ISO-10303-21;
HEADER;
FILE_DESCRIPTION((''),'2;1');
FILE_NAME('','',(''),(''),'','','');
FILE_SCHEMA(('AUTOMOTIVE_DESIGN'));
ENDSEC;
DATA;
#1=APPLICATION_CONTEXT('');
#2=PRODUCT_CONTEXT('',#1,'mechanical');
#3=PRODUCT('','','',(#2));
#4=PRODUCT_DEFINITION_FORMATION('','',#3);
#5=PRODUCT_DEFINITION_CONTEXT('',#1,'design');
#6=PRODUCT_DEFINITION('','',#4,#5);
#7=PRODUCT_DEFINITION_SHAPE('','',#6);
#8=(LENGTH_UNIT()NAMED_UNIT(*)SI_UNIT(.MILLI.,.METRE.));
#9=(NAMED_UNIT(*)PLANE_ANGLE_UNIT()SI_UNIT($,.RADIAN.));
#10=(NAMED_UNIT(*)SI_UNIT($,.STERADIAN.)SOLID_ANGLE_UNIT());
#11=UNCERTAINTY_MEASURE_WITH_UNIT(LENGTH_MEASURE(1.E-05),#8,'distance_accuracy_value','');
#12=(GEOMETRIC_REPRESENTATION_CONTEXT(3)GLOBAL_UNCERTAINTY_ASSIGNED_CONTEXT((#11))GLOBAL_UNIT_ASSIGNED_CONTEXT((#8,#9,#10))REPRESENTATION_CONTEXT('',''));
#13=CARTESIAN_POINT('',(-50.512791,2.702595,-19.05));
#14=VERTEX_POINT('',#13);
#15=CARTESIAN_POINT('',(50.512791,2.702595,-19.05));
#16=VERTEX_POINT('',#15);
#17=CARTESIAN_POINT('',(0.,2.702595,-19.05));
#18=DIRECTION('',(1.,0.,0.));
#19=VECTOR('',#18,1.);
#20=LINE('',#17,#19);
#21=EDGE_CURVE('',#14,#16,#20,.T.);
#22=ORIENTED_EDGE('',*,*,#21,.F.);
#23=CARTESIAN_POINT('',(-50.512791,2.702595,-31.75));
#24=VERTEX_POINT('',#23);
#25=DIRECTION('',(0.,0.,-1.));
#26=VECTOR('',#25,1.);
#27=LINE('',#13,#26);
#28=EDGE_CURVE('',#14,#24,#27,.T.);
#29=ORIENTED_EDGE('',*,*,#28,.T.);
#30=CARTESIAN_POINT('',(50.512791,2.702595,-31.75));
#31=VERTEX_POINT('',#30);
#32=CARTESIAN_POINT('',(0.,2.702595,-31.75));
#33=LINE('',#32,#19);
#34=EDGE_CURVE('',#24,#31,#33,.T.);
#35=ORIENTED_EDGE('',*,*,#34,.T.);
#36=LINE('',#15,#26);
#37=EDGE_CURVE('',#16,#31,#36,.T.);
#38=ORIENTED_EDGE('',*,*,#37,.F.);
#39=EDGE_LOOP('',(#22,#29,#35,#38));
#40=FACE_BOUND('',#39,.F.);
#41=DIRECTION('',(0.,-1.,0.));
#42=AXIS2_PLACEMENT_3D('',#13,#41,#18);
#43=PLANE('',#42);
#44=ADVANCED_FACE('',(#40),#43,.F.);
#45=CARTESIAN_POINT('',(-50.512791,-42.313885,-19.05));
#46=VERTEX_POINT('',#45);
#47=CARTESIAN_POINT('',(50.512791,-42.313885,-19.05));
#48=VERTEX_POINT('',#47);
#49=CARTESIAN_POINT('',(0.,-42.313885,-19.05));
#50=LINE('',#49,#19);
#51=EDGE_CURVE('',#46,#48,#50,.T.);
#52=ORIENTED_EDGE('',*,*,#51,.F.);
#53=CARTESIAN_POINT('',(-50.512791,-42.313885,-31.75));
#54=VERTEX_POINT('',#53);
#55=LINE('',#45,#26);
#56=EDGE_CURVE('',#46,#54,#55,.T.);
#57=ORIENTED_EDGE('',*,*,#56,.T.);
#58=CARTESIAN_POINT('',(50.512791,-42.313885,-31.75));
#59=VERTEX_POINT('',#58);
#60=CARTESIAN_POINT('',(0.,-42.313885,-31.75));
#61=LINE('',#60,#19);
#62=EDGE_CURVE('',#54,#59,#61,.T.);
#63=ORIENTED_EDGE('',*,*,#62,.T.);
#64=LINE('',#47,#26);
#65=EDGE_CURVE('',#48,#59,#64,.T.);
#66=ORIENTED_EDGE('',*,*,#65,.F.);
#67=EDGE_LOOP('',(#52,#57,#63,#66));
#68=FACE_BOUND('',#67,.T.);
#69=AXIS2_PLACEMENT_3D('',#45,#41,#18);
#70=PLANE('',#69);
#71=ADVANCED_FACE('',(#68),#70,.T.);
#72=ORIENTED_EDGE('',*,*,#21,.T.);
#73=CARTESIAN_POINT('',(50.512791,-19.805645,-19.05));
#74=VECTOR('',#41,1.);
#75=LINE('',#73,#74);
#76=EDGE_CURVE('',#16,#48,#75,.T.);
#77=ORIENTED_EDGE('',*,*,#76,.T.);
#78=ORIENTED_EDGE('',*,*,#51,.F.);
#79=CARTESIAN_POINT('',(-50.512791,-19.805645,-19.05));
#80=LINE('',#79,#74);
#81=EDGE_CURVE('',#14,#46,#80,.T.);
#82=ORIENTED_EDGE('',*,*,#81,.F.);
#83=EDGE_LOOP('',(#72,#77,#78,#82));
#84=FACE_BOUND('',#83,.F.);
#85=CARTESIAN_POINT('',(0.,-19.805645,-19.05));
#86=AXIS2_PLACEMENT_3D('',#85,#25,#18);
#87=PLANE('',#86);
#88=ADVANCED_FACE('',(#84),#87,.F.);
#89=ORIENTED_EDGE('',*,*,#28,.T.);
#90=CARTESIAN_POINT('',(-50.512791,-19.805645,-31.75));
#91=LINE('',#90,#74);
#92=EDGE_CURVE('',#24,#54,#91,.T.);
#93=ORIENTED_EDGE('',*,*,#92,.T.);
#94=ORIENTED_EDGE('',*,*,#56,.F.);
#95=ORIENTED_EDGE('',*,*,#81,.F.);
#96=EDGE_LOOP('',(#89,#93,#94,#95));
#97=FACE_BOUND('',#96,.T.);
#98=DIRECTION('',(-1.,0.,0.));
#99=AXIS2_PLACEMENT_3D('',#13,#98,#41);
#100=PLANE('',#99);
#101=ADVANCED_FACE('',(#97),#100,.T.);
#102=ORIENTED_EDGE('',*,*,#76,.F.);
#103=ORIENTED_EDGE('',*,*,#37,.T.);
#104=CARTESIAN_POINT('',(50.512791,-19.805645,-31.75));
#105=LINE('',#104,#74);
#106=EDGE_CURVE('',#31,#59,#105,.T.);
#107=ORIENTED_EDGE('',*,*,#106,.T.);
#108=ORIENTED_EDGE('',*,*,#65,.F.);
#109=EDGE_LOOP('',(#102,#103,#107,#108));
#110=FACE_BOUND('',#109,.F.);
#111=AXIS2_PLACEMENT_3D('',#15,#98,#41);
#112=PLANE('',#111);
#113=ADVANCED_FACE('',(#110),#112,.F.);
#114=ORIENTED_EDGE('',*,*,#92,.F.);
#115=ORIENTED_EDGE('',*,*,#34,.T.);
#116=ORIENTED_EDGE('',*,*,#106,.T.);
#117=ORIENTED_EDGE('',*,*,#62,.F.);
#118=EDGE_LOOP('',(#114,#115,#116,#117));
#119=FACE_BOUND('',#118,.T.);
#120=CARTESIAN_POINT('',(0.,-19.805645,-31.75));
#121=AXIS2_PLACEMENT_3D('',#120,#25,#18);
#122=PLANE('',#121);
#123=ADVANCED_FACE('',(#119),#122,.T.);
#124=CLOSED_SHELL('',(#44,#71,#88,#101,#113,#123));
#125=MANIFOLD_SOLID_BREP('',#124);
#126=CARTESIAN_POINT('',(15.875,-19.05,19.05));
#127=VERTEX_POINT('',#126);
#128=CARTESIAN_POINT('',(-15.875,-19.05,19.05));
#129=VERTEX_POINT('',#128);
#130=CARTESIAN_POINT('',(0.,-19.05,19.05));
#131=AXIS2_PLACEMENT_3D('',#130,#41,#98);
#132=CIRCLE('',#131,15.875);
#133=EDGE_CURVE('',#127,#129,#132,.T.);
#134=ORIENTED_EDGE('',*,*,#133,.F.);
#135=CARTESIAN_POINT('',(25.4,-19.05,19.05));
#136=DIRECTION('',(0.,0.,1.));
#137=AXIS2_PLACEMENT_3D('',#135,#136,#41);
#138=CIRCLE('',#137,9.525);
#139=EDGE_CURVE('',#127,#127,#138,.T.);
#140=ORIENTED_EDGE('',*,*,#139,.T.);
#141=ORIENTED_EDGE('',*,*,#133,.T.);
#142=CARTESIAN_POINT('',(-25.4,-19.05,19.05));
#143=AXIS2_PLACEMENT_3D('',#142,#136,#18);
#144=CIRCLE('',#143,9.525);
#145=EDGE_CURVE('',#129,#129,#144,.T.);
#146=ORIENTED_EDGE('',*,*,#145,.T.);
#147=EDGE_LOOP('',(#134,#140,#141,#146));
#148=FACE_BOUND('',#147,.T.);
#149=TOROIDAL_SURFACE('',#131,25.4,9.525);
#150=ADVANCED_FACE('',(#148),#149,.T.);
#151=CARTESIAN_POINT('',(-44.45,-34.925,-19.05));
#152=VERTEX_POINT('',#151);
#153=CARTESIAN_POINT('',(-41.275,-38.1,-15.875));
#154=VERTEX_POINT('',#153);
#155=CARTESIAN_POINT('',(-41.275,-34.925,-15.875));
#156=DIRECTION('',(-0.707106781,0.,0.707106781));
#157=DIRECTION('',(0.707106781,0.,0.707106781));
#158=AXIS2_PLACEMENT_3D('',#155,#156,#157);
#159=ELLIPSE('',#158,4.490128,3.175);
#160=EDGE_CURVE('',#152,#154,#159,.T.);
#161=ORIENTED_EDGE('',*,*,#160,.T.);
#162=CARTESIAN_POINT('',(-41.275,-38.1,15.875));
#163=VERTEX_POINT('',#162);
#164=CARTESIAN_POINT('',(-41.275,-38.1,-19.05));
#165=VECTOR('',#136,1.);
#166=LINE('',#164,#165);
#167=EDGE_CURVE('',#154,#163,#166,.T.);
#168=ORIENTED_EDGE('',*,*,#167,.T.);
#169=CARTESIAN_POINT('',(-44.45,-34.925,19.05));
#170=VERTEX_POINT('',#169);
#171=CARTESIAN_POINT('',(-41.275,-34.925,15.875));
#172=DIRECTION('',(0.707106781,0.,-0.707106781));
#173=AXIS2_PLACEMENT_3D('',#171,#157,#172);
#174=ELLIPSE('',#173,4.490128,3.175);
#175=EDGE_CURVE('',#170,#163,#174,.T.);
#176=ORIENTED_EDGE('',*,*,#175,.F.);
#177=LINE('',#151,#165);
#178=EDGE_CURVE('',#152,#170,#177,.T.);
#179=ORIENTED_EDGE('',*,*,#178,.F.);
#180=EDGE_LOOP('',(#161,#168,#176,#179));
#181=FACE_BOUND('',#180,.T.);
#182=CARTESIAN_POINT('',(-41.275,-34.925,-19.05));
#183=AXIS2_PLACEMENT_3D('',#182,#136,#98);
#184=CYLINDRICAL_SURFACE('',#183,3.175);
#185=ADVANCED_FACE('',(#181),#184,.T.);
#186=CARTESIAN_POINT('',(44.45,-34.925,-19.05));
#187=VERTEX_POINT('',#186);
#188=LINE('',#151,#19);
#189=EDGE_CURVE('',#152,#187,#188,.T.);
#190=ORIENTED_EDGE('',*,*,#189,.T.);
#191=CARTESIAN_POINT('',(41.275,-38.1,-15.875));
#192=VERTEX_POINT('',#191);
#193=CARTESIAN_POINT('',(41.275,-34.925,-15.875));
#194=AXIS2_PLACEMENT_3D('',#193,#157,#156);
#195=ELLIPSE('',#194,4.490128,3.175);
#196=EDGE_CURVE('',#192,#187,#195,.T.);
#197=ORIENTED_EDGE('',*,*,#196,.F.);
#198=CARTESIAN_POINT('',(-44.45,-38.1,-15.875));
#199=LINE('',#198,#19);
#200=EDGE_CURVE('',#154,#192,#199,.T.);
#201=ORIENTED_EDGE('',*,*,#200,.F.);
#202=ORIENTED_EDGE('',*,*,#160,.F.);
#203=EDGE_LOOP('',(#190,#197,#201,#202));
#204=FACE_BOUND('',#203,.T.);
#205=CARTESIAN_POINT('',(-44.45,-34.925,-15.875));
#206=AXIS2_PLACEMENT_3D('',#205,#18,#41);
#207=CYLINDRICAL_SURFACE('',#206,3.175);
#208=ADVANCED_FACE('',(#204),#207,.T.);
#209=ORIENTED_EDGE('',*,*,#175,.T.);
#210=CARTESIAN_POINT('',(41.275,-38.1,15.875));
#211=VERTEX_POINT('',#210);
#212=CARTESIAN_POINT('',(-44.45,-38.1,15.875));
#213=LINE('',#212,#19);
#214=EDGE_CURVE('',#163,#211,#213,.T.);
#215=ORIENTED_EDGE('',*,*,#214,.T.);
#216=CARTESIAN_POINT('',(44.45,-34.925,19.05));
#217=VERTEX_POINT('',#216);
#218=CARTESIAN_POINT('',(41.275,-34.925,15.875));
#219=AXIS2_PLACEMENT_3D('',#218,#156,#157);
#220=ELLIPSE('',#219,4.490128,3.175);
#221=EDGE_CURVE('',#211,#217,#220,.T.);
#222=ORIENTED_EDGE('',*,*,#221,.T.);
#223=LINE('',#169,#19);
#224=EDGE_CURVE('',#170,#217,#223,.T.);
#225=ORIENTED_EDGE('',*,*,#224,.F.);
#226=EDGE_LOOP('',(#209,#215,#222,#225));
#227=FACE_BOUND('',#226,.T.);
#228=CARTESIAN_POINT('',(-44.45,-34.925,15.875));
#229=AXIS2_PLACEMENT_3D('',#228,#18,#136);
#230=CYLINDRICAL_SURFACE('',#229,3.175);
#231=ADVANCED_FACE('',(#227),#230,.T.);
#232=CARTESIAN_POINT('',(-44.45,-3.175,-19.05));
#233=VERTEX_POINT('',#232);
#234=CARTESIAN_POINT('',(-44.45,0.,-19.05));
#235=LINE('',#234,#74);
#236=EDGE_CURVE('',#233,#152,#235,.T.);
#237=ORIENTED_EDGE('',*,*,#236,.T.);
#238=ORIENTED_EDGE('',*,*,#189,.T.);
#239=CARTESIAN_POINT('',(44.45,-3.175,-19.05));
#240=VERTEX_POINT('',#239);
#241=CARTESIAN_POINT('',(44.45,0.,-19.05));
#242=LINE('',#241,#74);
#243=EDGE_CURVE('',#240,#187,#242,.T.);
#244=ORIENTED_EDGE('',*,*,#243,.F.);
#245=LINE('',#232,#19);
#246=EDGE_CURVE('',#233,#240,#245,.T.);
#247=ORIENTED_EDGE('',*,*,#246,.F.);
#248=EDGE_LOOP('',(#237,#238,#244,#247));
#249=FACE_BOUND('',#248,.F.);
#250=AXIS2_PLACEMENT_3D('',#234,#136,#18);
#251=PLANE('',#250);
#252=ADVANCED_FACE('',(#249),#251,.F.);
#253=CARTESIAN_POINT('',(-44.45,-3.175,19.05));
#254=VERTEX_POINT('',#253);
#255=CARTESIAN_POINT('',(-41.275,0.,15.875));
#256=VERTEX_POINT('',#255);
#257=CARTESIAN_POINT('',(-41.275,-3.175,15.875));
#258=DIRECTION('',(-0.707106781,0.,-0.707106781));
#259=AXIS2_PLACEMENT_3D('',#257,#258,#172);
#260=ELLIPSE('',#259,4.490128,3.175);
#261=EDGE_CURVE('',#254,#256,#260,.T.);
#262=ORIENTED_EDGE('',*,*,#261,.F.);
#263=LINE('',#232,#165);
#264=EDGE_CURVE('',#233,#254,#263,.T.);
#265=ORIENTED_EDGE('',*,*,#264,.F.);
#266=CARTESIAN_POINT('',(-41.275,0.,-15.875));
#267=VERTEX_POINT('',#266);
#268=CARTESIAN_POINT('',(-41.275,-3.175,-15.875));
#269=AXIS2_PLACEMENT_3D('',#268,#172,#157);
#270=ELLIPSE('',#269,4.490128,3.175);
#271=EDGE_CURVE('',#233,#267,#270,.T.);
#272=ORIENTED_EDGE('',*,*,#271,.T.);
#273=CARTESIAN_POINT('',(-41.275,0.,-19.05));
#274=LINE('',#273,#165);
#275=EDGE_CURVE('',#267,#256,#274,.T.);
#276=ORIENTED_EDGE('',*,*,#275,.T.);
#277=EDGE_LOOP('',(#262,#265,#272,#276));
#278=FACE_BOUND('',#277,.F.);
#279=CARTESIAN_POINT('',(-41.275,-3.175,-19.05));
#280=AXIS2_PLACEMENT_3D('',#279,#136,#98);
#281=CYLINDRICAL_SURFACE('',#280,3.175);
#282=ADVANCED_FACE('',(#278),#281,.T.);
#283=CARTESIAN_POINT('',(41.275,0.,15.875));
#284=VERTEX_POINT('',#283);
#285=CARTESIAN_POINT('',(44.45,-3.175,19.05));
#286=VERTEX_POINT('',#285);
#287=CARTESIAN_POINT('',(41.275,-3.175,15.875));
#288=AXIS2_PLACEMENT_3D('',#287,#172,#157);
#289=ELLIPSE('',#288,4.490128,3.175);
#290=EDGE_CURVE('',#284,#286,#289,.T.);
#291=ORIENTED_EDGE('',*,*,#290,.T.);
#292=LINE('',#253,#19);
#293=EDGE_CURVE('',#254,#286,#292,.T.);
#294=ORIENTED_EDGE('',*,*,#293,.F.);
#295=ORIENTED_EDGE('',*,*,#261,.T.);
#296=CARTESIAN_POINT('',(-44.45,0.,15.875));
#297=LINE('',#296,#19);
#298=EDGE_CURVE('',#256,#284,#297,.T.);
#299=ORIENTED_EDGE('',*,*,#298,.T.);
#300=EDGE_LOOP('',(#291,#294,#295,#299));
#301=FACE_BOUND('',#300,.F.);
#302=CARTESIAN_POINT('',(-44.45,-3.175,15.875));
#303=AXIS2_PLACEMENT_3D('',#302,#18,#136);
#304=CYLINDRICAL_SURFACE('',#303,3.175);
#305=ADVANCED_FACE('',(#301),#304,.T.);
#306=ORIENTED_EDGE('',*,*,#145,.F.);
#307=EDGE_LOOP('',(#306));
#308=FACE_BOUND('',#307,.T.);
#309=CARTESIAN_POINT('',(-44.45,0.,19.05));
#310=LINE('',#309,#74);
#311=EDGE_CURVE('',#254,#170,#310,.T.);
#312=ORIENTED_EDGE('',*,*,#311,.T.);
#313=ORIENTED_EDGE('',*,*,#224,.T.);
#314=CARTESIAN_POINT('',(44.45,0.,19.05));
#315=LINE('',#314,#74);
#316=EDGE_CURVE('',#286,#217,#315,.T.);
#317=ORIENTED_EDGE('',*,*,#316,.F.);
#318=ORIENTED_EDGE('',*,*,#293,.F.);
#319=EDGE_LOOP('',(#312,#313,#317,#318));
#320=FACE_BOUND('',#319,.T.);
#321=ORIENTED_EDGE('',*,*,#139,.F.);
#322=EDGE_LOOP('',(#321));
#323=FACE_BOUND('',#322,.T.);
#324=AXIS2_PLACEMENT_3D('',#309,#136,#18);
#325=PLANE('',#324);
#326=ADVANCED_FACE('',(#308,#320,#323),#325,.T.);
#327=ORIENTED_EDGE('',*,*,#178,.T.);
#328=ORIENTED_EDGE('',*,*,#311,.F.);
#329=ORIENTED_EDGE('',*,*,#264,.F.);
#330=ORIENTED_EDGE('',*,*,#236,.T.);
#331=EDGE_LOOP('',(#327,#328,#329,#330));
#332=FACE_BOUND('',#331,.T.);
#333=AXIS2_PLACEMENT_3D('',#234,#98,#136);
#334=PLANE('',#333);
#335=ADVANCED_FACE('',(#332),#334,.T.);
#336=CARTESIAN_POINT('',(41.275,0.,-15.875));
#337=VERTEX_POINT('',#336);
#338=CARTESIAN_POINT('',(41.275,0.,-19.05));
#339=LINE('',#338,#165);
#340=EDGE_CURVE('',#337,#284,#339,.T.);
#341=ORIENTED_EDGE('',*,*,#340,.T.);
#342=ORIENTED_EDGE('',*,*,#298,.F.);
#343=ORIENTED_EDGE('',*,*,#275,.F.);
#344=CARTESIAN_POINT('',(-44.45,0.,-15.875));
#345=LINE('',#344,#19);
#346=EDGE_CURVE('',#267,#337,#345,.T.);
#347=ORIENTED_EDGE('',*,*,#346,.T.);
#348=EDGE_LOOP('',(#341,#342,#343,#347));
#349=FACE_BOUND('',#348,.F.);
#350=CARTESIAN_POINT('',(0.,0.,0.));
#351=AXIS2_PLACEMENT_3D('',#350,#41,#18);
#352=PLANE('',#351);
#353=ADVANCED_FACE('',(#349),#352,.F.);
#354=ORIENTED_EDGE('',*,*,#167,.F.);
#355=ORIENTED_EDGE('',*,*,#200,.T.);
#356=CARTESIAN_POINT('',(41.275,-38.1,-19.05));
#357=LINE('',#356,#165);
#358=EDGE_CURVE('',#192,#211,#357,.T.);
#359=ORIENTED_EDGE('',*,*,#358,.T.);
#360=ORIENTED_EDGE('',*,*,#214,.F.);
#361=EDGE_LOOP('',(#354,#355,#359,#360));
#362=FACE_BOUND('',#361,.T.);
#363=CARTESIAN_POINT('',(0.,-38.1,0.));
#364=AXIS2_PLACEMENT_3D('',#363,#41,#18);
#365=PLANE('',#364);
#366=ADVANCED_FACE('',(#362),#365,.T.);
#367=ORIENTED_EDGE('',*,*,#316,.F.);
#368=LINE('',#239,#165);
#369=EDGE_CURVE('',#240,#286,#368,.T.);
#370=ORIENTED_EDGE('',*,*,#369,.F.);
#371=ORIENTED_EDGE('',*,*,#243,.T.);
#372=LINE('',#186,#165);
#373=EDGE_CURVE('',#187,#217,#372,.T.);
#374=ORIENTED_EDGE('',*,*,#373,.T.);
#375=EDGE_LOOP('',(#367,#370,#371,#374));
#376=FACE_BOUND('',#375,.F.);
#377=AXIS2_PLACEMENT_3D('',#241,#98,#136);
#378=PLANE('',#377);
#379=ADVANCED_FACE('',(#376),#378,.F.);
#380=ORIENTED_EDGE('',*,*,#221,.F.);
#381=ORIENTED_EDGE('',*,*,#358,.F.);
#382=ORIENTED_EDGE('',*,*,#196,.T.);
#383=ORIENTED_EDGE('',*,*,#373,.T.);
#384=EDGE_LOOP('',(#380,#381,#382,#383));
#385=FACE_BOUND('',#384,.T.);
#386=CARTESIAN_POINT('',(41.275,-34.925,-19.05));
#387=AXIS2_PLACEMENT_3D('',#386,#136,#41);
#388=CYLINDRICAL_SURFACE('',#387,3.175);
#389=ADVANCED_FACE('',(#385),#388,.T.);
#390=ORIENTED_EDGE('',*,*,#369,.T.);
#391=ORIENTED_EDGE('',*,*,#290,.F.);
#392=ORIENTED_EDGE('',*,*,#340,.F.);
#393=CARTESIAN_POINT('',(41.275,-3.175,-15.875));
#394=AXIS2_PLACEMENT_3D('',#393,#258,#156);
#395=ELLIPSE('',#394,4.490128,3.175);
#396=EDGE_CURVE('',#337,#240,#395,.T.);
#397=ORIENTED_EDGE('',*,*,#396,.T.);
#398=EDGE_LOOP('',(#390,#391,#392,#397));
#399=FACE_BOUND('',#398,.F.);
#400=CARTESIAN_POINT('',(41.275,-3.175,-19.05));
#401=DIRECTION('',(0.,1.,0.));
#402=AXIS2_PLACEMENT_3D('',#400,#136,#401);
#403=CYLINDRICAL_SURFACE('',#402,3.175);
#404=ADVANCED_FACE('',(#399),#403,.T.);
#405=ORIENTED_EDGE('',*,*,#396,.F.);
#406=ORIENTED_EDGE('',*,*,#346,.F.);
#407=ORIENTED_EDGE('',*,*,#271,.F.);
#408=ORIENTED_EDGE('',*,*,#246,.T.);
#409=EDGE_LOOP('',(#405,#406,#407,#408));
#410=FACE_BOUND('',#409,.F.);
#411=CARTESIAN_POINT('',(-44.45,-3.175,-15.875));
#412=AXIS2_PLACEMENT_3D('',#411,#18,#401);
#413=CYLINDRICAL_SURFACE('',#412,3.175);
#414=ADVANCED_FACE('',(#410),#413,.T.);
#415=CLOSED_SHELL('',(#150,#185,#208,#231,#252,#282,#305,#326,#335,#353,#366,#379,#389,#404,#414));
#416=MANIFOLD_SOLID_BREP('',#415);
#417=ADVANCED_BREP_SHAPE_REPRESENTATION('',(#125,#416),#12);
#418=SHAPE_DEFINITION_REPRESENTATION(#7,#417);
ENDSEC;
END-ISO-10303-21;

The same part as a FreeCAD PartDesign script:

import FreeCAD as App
import Part
import Sketcher
Q = App.Units.Quantity


def edges_at(feature, points):
    """Names of the edges that pass closest to the given points."""
    edges = feature.Shape.Edges
    near = lambda p: min(range(len(edges)), key=lambda i: edges[i].distToShape(Part.Vertex(*p))[0])
    return sorted({f"Edge{near(p) + 1}" for p in points})

doc = App.newDocument("Part")
body = doc.addObject("PartDesign::Body", "Body")

sketch1 = body.newObject("Sketcher::SketchObject", "Sketch")
sketch1.AttachmentSupport = (doc.getObject("XZ_Plane"), [""])
sketch1.MapMode = "FlatFace"
sketch1.addGeometry(Part.LineSegment(App.Vector(-44, 19, 0), App.Vector(-44, -19, 0)), False)
sketch1.addGeometry(Part.LineSegment(App.Vector(-44, -19, 0), App.Vector(44, -19, 0)), False)
sketch1.addGeometry(Part.LineSegment(App.Vector(44, -19, 0), App.Vector(44, 19, 0)), False)
sketch1.addGeometry(Part.LineSegment(App.Vector(44, 19, 0), App.Vector(-44, 19, 0)), False)
sketch1.addConstraint(Sketcher.Constraint("Coincident", 0, 2, 1, 1))
sketch1.addConstraint(Sketcher.Constraint("Coincident", 1, 2, 2, 1))
sketch1.addConstraint(Sketcher.Constraint("Coincident", 2, 2, 3, 1))
sketch1.addConstraint(Sketcher.Constraint("Coincident", 3, 2, 0, 1))
sketch1.addConstraint(Sketcher.Constraint("Vertical", 0))
sketch1.addConstraint(Sketcher.Constraint("Horizontal", 1))
sketch1.addConstraint(Sketcher.Constraint("Vertical", 2))
sketch1.addConstraint(Sketcher.Constraint("Horizontal", 3))
sketch1.addConstraint(Sketcher.Constraint("Symmetric", 0, 2, 2, 2, -1, 1))
sketch1.addConstraint(Sketcher.Constraint("DistanceX", 1, 1, 1, 2, Q("3.5 in")))
sketch1.addConstraint(Sketcher.Constraint("DistanceY", 0, 2, 0, 1, Q("1.5 in")))
pad1 = body.newObject("PartDesign::Pad", "Pad")
pad1.Profile = sketch1
pad1.Length = Q("1.5 in")

sketch2 = body.newObject("Sketcher::SketchObject", "Sketch001")
sketch2.AttachmentSupport = (doc.getObject("XY_Plane"), [""])
sketch2.MapMode = "FlatFace"
sketch2.AttachmentOffset = App.Placement(App.Vector(0, 0, 0.75 * 25.4), App.Rotation())
sketch2.addGeometry(Part.Circle(App.Vector(-25, -19, 0), App.Vector(0, 0, 1), 10), False)
sketch2.addConstraint(Sketcher.Constraint("Diameter", 0, Q("0.75 in")))
sketch2.addConstraint(Sketcher.Constraint("DistanceX", 0, 3, -1, 1, Q("1 in")))
sketch2.addConstraint(Sketcher.Constraint("DistanceY", 0, 3, -1, 1, Q("0.75 in")))
revolution = body.newObject("PartDesign::Revolution", "Revolution")
revolution.Profile = sketch2
revolution.ReferenceAxis = (sketch2, ["V_Axis"])
revolution.Angle = 360
doc.recompute()

fillet = body.newObject("PartDesign::Fillet", "Fillet")
fillet.Base = (revolution, edges_at(revolution, [
    (44.45, -38.1, 0),
    (0, -38.1, 19.05),
    (-44.45, -38.1, 0),
    (0, -38.1, -19.05),
    (44.45, 0, 0),
    (0, 0, 19.05),
    (-44.45, 0, 0),
    (0, 0, -19.05),
]))
fillet.Radius = Q("0.125 in")
body2 = doc.addObject("PartDesign::Body", "Body001")

sketch3 = body2.newObject("Sketcher::SketchObject", "Sketch002")
sketch3.AttachmentSupport = (doc.getObject("XY_Plane001"), [""])
sketch3.MapMode = "FlatFace"
sketch3.AttachmentOffset = App.Placement(App.Vector(0, 0, -0.75 * 25.4), App.Rotation())
sketch3.addGeometry(Part.LineSegment(App.Vector(-51, -42, 0), App.Vector(-51, 3, 0)), False)
sketch3.addGeometry(Part.LineSegment(App.Vector(-51, 3, 0), App.Vector(51, 3, 0)), False)
sketch3.addGeometry(Part.LineSegment(App.Vector(51, 3, 0), App.Vector(51, -42, 0)), False)
sketch3.addGeometry(Part.LineSegment(App.Vector(51, -42, 0), App.Vector(-51, -42, 0)), False)
sketch3.addConstraint(Sketcher.Constraint("Coincident", 0, 2, 1, 1))
sketch3.addConstraint(Sketcher.Constraint("Coincident", 1, 2, 2, 1))
sketch3.addConstraint(Sketcher.Constraint("Coincident", 2, 2, 3, 1))
sketch3.addConstraint(Sketcher.Constraint("Coincident", 3, 2, 0, 1))
sketch3.addConstraint(Sketcher.Constraint("Vertical", 0))
sketch3.addConstraint(Sketcher.Constraint("Horizontal", 1))
sketch3.addConstraint(Sketcher.Constraint("Vertical", 2))
sketch3.addConstraint(Sketcher.Constraint("Horizontal", 3))
sketch3.addConstraint(Sketcher.Constraint("DistanceX", 1, 1, 1, 2, 101.025582))
sketch3.addConstraint(Sketcher.Constraint("DistanceY", 0, 1, 0, 2, 45.01648))
sketch3.addConstraint(Sketcher.Constraint("DistanceX", 0, 2, -1, 1, 50.512791))
sketch3.addConstraint(Sketcher.Constraint("DistanceY", -1, 1, 0, 2, 2.702595))
pad2 = body2.newObject("PartDesign::Pad", "Pad001")
pad2.Profile = sketch3
pad2.Length = Q("0.5 in")
pad2.Reversed = True

doc.recompute()
